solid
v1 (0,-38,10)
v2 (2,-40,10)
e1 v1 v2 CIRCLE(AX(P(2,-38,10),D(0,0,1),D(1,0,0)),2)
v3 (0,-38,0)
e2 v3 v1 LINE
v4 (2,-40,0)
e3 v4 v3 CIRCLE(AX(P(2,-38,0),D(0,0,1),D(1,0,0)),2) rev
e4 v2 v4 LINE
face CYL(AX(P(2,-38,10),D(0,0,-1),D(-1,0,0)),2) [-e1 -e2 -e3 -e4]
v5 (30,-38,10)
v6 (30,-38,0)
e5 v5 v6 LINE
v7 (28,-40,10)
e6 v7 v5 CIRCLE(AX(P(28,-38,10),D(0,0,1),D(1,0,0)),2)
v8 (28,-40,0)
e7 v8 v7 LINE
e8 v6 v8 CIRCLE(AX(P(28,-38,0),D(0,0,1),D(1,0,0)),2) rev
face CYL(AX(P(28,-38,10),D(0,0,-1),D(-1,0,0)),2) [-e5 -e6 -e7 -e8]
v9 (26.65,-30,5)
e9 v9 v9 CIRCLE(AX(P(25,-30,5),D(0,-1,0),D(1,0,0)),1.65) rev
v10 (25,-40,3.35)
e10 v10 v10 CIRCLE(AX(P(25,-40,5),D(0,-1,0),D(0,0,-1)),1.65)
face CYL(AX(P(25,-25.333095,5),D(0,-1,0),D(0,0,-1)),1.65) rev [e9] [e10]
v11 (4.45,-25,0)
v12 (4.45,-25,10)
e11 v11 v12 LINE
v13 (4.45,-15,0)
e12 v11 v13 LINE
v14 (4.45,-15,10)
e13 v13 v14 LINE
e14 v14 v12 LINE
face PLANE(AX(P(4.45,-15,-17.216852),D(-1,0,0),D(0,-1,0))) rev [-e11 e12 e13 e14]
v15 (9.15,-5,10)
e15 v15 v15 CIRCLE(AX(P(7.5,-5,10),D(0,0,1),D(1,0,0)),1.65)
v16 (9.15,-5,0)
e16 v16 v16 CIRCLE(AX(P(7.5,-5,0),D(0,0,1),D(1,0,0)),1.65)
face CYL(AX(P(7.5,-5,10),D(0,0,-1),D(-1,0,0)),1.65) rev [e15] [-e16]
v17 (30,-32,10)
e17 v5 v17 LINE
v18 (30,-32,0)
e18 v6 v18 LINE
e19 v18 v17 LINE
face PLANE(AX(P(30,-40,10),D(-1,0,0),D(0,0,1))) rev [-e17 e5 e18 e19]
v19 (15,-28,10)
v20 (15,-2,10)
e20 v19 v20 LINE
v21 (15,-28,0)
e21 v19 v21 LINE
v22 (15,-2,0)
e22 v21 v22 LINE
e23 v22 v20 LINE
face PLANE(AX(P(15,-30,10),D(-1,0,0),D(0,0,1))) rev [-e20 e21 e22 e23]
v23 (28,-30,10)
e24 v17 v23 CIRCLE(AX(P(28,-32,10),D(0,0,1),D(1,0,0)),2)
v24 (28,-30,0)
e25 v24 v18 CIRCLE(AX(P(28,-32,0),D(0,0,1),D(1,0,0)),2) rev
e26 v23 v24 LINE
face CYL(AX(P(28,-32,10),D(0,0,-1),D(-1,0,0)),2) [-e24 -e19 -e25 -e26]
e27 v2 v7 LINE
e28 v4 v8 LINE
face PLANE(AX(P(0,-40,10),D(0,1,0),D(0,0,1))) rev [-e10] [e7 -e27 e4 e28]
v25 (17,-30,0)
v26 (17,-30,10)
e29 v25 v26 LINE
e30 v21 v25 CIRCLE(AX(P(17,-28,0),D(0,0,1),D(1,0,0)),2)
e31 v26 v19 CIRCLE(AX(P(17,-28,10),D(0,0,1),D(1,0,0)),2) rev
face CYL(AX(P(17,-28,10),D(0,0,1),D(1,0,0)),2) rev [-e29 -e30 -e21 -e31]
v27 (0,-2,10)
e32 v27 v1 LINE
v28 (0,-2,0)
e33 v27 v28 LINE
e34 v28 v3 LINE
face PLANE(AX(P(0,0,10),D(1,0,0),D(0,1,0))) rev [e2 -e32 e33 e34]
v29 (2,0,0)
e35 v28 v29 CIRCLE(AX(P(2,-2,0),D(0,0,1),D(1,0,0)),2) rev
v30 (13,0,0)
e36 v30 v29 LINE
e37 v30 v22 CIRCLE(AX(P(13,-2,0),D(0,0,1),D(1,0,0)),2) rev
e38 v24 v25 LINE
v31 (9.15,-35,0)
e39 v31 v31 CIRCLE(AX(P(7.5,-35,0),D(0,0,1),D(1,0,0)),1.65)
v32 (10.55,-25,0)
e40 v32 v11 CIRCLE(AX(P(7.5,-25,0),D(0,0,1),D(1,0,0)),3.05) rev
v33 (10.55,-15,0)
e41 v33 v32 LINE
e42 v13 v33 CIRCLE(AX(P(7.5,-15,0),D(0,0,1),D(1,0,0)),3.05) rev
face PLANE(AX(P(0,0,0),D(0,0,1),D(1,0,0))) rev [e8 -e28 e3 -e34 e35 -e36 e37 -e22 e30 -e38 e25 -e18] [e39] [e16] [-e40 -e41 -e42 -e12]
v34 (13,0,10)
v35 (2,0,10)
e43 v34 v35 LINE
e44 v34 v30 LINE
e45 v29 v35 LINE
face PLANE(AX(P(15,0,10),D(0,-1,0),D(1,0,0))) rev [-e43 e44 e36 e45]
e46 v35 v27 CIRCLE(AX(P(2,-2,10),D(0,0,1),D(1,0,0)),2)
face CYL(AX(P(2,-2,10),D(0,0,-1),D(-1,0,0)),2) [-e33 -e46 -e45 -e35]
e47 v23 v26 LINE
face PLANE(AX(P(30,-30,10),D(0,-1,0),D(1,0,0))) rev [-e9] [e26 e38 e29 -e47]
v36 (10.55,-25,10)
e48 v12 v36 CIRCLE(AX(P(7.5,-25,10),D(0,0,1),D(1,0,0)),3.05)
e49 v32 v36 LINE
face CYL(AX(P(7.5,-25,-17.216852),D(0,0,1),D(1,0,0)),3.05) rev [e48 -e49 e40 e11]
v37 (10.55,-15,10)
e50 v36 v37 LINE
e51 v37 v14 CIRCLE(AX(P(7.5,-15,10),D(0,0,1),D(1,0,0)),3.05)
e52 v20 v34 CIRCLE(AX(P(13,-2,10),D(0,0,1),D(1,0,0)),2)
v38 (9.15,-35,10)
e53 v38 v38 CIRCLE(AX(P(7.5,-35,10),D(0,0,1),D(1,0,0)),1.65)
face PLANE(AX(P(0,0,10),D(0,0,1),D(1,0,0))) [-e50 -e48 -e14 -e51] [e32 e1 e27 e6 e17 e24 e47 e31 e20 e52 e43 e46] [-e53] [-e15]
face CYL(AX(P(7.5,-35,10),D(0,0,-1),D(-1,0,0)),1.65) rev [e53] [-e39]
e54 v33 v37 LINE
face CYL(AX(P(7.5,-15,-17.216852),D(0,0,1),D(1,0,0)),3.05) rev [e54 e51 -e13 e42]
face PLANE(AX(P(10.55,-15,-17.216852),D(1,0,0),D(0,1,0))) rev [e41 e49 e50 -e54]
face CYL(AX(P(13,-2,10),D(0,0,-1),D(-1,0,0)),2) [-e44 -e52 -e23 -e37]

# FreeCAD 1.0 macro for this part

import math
import FreeCAD as App
import Part
import Sketcher


def edges_at(feature, points):
    """Names of the edges that pass closest to the given points."""
    edges = feature.Shape.Edges
    near = lambda p: min(range(len(edges)), key=lambda i: edges[i].distToShape(Part.Vertex(*p))[0])
    return sorted({f"Edge{near(p) + 1}" for p in points})

doc = App.newDocument("Part")
params = doc.addObject("Spreadsheet::Sheet", "Params")
for row, (alias, value) in enumerate([
    ("sketch1_diameter", "3.3 mm"),
    ("sketch1_width", "30 mm"),
    ("sketch1_height", "40 mm"),
    ("pad1_length", "10 mm"),
    ("sketch2_diameter", "3.3 mm"),
    ("pocket1_length", "10 mm"),
    ("sketch3_height", "10 mm"),
    ("sketch3_radius", "3.05 mm"),
    ("pocket2_length", "10 mm"),
    ("fillet_radius", "2 mm"),
    ("fillet2_radius", "2 mm"),
], start=1):
    params.set(f"A{row}", alias)
    params.set(f"B{row}", "=" + value)
    params.setAlias(f"B{row}", alias)

body = doc.addObject("PartDesign::Body", "Body")

# Sketch on XY plane
sketch1 = doc.addObject("Sketcher::SketchObject", "Sketch")
body.addObject(sketch1)
sketch1.AttachmentSupport = (doc.XY_Plane, [""])
sketch1.MapMode = "FlatFace"
sketch1.addGeometry(Part.LineSegment(App.Vector(0, 0, 0), App.Vector(0, -40, 0)), False)
sketch1.addGeometry(Part.LineSegment(App.Vector(0, -40, 0), App.Vector(30, -40, 0)), False)
sketch1.addGeometry(Part.LineSegment(App.Vector(30, -40, 0), App.Vector(30, -30, 0)), False)
sketch1.addGeometry(Part.LineSegment(App.Vector(30, -30, 0), App.Vector(15, -30, 0)), False)
sketch1.addGeometry(Part.LineSegment(App.Vector(15, -30, 0), App.Vector(15, 0, 0)), False)
sketch1.addGeometry(Part.LineSegment(App.Vector(15, 0, 0), App.Vector(0, 0, 0)), False)
sketch1.addGeometry(Part.Circle(App.Vector(7.5, -35, 0), App.Vector(0, 0, 1), 1.6), False)
sketch1.addGeometry(Part.Circle(App.Vector(7.5, -5, 0), App.Vector(0, 0, 1), 1.6), False)
sketch1.addConstraint(Sketcher.Constraint("Coincident", 0, 2, 1, 1))
sketch1.addConstraint(Sketcher.Constraint("Coincident", 1, 2, 2, 1))
sketch1.addConstraint(Sketcher.Constraint("Coincident", 2, 2, 3, 1))
sketch1.addConstraint(Sketcher.Constraint("Coincident", 3, 2, 4, 1))
sketch1.addConstraint(Sketcher.Constraint("Coincident", 4, 2, 5, 1))
sketch1.addConstraint(Sketcher.Constraint("Coincident", 5, 2, 0, 1))
sketch1.addConstraint(Sketcher.Constraint("Vertical", 0))
sketch1.addConstraint(Sketcher.Constraint("Horizontal", 1))
sketch1.addConstraint(Sketcher.Constraint("Vertical", 2))
sketch1.addConstraint(Sketcher.Constraint("Horizontal", 3))
sketch1.addConstraint(Sketcher.Constraint("Vertical", 4))
sketch1.addConstraint(Sketcher.Constraint("Horizontal", 5))
sketch1.addConstraint(Sketcher.Constraint("Coincident", 5, 2, -1, 1))
sketch1.addConstraint(Sketcher.Constraint("Equal", 6, 7))
sketch1.addConstraint(Sketcher.Constraint("Vertical", 6, 3, 7, 3))
sketch1.addConstraint(Sketcher.Constraint("Equal", 3, 5))
sketch1.addConstraint(Sketcher.Constraint("Equal", 1, 4))
sketch1.addConstraint(Sketcher.Constraint("Diameter", 6, 3.3))
sketch1.addConstraint(Sketcher.Constraint("DistanceX", 1, 1, 1, 2, 30.0))
sketch1.addConstraint(Sketcher.Constraint("DistanceY", 0, 2, 0, 1, 40.0))
sketch1.addConstraint(Sketcher.Constraint("DistanceY", 6, 3, -1, 1, 35.0))
sketch1.addConstraint(Sketcher.Constraint("DistanceY", 7, 3, -1, 1, 5.0))
sketch1.addConstraint(Sketcher.Constraint("DistanceX", -1, 1, 6, 3, 7.5))
sketch1.setExpression("Constraints[17]", "Params.sketch1_diameter")
sketch1.setExpression("Constraints[18]", "Params.sketch1_width")
sketch1.setExpression("Constraints[19]", "Params.sketch1_height")
pad1 = doc.addObject("PartDesign::Pad", "Pad")
body.addObject(pad1)
pad1.Profile = sketch1
pad1.setExpression("Length", "Params.pad1_length")

# Sketch on XZ plane
sketch2 = doc.addObject("Sketcher::SketchObject", "Sketch001")
body.addObject(sketch2)
sketch2.AttachmentSupport = (doc.XZ_Plane, [""])
sketch2.MapMode = "FlatFace"
sketch2.AttachmentOffset = App.Placement(App.Vector(0, 0, 40), App.Rotation())
sketch2.addGeometry(Part.Circle(App.Vector(25, 5, 0), App.Vector(0, 0, 1), 1.6), False)
sketch2.addConstraint(Sketcher.Constraint("Diameter", 0, 3.3))
sketch2.addConstraint(Sketcher.Constraint("DistanceX", -1, 1, 0, 3, 25.0))
sketch2.addConstraint(Sketcher.Constraint("DistanceY", -1, 1, 0, 3, 5.0))
sketch2.setExpression("Constraints[0]", "Params.sketch2_diameter")
pocket1 = doc.addObject("PartDesign::Pocket", "Pocket")
body.addObject(pocket1)
pocket1.Profile = sketch2
pocket1.setExpression("Length", "Params.pocket1_length")

# Sketch on XY plane
sketch3 = doc.addObject("Sketcher::SketchObject", "Sketch002")
body.addObject(sketch3)
sketch3.AttachmentSupport = (doc.XY_Plane, [""])
sketch3.MapMode = "FlatFace"
sketch3.AttachmentOffset = App.Placement(App.Vector(0, 0, 10), App.Rotation())
sketch3.addGeometry(Part.LineSegment(App.Vector(10.6, -25, 0), App.Vector(10.6, -15, 0)), False)
sketch3.addGeometry(Part.ArcOfCircle(Part.Circle(App.Vector(7.5, -15, 0), App.Vector(0, 0, 1), 3), math.radians(0), math.radians(180)), False)
sketch3.addGeometry(Part.LineSegment(App.Vector(4.5, -15, 0), App.Vector(4.5, -25, 0)), False)
sketch3.addGeometry(Part.ArcOfCircle(Part.Circle(App.Vector(7.5, -25, 0), App.Vector(0, 0, 1), 3), math.radians(180), math.radians(360)), False)
sketch3.addConstraint(Sketcher.Constraint("Tangent", 0, 2, 1, 1))
sketch3.addConstraint(Sketcher.Constraint("Tangent", 1, 2, 2, 1))
sketch3.addConstraint(Sketcher.Constraint("Tangent", 2, 2, 3, 1))
sketch3.addConstraint(Sketcher.Constraint("Tangent", 3, 2, 0, 1))
sketch3.addConstraint(Sketcher.Constraint("Vertical", 0))
sketch3.addConstraint(Sketcher.Constraint("Vertical", 2))
sketch3.addConstraint(Sketcher.Constraint("DistanceY", 0, 1, 0, 2, 10.0))
sketch3.addConstraint(Sketcher.Constraint("Radius", 1, 3.05))
sketch3.addConstraint(Sketcher.Constraint("DistanceY", 1, 3, -1, 1, 15.0))
sketch3.addConstraint(Sketcher.Constraint("DistanceX", -1, 1, 1, 3, 7.5))
sketch3.setExpression("Constraints[6]", "Params.sketch3_height")
sketch3.setExpression("Constraints[7]", "Params.sketch3_radius")
pocket2 = doc.addObject("PartDesign::Pocket", "Pocket001")
body.addObject(pocket2)
pocket2.Profile = sketch3
pocket2.setExpression("Length", "Params.pocket2_length")
doc.recompute()

fillet = doc.addObject("PartDesign::Fillet", "Fillet")
body.addObject(fillet)
fillet.Base = (pocket2, edges_at(pocket2, [(15, -30, 5)]))
fillet.setExpression("Radius", "Params.fillet_radius")
doc.recompute()

fillet2 = doc.addObject("PartDesign::Fillet", "Fillet001")
body.addObject(fillet2)
fillet2.Base = (fillet, edges_at(fillet, [
    (15, 0, 5),
    (30, -30, 5),
    (30, -40, 5),
    (0, -40, 5),
    (0, 0, 5),
]))
fillet2.setExpression("Radius", "Params.fillet2_radius")

doc.recompute()
